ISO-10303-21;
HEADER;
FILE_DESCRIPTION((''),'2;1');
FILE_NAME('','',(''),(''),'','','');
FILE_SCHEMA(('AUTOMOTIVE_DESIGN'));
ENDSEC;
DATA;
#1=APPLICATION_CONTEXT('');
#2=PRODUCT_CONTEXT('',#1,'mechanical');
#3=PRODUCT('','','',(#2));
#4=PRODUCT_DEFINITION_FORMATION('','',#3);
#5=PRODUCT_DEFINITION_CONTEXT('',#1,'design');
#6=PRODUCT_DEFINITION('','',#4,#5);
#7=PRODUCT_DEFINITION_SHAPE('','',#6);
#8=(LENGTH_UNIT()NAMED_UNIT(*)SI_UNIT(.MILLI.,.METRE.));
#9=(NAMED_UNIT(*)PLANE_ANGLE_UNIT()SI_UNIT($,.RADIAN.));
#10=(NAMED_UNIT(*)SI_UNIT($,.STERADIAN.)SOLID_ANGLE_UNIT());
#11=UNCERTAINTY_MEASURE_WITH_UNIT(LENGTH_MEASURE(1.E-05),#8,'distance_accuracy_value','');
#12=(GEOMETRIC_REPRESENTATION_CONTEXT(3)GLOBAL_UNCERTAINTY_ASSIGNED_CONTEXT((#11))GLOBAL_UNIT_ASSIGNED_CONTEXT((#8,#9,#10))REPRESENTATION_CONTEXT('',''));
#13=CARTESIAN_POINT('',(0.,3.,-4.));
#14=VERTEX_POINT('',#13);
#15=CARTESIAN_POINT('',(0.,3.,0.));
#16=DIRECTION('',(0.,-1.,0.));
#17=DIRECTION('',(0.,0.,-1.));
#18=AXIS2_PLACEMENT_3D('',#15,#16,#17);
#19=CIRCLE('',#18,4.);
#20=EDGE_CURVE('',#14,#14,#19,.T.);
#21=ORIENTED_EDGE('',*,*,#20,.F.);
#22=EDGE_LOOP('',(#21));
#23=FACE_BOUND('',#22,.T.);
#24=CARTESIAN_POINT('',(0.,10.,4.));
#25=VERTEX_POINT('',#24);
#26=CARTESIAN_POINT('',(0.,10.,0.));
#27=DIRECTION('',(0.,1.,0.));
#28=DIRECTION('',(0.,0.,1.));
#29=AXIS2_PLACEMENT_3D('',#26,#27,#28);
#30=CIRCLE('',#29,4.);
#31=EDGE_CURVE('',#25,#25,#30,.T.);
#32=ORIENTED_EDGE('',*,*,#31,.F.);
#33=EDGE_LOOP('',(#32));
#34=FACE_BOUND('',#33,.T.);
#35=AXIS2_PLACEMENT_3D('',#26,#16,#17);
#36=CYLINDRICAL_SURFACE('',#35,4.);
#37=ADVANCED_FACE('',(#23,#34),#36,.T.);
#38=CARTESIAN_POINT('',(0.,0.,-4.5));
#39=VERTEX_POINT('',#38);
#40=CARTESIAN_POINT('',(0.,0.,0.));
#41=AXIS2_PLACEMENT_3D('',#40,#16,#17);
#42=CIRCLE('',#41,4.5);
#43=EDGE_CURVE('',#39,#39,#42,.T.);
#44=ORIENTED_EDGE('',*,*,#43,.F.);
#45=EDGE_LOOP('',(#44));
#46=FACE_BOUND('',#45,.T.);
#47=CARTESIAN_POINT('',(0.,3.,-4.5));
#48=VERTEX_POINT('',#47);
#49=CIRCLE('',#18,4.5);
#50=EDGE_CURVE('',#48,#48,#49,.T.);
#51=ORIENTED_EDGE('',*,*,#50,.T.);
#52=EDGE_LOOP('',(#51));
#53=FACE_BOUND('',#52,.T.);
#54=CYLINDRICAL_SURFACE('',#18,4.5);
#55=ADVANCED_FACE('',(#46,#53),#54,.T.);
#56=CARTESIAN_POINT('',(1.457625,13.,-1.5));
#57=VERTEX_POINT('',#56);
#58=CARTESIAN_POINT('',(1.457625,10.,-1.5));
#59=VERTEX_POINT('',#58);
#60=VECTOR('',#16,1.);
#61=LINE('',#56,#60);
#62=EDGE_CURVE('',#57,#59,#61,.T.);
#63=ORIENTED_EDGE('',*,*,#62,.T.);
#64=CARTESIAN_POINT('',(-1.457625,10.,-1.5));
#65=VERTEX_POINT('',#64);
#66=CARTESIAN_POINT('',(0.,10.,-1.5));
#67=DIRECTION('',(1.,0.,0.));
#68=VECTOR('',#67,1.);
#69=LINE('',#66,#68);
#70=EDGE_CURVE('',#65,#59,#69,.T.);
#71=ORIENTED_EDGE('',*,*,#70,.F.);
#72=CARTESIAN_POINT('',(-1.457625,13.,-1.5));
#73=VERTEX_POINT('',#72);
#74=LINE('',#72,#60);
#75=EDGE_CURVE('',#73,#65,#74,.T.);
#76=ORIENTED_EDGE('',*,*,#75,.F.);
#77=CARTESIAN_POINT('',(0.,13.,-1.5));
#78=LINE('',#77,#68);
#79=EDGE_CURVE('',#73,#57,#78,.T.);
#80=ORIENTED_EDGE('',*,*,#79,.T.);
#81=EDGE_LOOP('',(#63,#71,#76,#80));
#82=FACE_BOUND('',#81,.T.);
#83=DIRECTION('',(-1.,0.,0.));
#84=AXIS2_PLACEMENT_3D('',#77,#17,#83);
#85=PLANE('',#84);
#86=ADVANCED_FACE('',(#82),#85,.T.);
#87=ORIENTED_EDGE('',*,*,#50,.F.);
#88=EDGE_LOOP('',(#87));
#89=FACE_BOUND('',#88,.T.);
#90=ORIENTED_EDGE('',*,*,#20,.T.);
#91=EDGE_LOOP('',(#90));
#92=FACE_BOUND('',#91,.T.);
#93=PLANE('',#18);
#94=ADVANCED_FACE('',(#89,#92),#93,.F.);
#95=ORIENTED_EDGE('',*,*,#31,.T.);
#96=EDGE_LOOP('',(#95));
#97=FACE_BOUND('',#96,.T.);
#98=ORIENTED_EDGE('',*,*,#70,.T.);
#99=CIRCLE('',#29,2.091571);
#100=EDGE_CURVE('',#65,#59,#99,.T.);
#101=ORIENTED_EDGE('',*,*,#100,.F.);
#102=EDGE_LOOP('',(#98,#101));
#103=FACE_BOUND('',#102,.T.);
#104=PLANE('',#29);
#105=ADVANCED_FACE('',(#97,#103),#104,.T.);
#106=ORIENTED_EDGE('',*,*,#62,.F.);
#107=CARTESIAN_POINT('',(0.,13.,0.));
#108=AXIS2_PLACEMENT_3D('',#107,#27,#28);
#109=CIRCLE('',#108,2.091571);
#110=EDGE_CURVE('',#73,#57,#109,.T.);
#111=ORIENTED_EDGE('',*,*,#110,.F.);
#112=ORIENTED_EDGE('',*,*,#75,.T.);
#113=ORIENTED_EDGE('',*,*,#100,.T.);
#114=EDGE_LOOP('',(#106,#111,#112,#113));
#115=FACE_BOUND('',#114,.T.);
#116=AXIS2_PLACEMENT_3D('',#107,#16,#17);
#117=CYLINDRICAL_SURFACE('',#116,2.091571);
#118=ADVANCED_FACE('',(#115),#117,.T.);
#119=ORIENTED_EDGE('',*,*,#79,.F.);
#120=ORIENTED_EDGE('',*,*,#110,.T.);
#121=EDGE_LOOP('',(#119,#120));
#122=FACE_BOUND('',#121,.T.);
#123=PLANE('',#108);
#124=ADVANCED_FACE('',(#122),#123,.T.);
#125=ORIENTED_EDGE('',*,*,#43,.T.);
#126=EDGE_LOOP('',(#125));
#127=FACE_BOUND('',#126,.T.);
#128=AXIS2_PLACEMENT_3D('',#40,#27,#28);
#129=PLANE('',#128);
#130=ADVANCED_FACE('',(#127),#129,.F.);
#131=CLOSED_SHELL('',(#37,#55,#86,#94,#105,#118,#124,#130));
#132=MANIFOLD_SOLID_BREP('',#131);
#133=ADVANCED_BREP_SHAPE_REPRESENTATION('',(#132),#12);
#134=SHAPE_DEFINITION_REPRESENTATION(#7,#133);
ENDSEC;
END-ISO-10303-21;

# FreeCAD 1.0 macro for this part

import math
import FreeCAD as App
import Part
import Sketcher
from FreeCAD import Vector
Q = App.Units.Quantity

doc = App.newDocument("Part")
body = doc.addObject("PartDesign::Body", "Body")

sketch1 = body.newObject("Sketcher::SketchObject", "Sketch")
sketch1.AttachmentSupport = (doc.getObject("XZ_Plane"), [""])
sketch1.MapMode = "FlatFace"
sketch1.addGeometry(Part.Circle(Vector(0, 0, 0), Vector(0, 0, 1), 4), False)
sketch1.addConstraint([
    Sketcher.Constraint("Coincident", 0, 3, -1, 1),
    Sketcher.Constraint("Diameter", 0, Q("8 mm")),
])
pad1 = body.newObject("PartDesign::Pad", "Pad")
pad1.Profile = sketch1
pad1.Length = 10
pad1.Reversed = True

sketch2 = body.newObject("Sketcher::SketchObject", "Sketch001")
sketch2.AttachmentSupport = (doc.getObject("XZ_Plane"), [""])
sketch2.MapMode = "FlatFace"
sketch2.AttachmentOffset = App.Placement(Vector(0, 0, -10), App.Rotation())
sketch2.addGeometry([
    Part.LineSegment(Vector(1.5, -1.5, 0), Vector(-1.5, -1.5, 0)),
    Part.ArcOfCircle(Part.Circle(Vector(0, 0, 0), Vector(0, 0, 1), 2.1), math.radians(0), math.radians(226)),
    Part.ArcOfCircle(Part.Circle(Vector(0, 0, 0), Vector(0, 0, 1), 2.1), math.radians(-46), math.radians(0)),
], False)
sketch2.addConstraint([
    Sketcher.Constraint("Coincident", 0, 2, 1, 2),
    Sketcher.Constraint("Tangent", 1, 1, 2, 2),
    Sketcher.Constraint("Coincident", 2, 1, 0, 1),
    Sketcher.Constraint("Horizontal", 0),
    Sketcher.Constraint("Coincident", 1, 3, -1, 1),
    Sketcher.Constraint("Equal", 1, 2),
    Sketcher.Constraint("PointOnObject", 1, 1, -1),
    Sketcher.Constraint("DistanceY", 0, 2, -1, 1, Q("1.5 mm")),
    Sketcher.Constraint("Radius", 1, Q("2.091571 mm")),
])
pad2 = body.newObject("PartDesign::Pad", "Pad001")
pad2.Profile = sketch2
pad2.Length = 3
pad2.Reversed = True

sketch3 = body.newObject("Sketcher::SketchObject", "Sketch002")
sketch3.AttachmentSupport = (doc.getObject("XZ_Plane"), [""])
sketch3.MapMode = "FlatFace"
sketch3.addGeometry([
    Part.Circle(Vector(0, 0, 0), Vector(0, 0, 1), 4.5),
    Part.Circle(Vector(0, 0, 0), Vector(0, 0, 1), 4),
], False)
sketch3.addConstraint([
    Sketcher.Constraint("Coincident", 0, 3, -1, 1),
    Sketcher.Constraint("Coincident", 1, 3, -1, 1),
    Sketcher.Constraint("Diameter", 0, Q("9 mm")),
    Sketcher.Constraint("Diameter", 1, Q("8 mm")),
])
pad3 = body.newObject("PartDesign::Pad", "Pad002")
pad3.Profile = sketch3
pad3.Length = 3
pad3.Reversed = True

doc.recompute()
